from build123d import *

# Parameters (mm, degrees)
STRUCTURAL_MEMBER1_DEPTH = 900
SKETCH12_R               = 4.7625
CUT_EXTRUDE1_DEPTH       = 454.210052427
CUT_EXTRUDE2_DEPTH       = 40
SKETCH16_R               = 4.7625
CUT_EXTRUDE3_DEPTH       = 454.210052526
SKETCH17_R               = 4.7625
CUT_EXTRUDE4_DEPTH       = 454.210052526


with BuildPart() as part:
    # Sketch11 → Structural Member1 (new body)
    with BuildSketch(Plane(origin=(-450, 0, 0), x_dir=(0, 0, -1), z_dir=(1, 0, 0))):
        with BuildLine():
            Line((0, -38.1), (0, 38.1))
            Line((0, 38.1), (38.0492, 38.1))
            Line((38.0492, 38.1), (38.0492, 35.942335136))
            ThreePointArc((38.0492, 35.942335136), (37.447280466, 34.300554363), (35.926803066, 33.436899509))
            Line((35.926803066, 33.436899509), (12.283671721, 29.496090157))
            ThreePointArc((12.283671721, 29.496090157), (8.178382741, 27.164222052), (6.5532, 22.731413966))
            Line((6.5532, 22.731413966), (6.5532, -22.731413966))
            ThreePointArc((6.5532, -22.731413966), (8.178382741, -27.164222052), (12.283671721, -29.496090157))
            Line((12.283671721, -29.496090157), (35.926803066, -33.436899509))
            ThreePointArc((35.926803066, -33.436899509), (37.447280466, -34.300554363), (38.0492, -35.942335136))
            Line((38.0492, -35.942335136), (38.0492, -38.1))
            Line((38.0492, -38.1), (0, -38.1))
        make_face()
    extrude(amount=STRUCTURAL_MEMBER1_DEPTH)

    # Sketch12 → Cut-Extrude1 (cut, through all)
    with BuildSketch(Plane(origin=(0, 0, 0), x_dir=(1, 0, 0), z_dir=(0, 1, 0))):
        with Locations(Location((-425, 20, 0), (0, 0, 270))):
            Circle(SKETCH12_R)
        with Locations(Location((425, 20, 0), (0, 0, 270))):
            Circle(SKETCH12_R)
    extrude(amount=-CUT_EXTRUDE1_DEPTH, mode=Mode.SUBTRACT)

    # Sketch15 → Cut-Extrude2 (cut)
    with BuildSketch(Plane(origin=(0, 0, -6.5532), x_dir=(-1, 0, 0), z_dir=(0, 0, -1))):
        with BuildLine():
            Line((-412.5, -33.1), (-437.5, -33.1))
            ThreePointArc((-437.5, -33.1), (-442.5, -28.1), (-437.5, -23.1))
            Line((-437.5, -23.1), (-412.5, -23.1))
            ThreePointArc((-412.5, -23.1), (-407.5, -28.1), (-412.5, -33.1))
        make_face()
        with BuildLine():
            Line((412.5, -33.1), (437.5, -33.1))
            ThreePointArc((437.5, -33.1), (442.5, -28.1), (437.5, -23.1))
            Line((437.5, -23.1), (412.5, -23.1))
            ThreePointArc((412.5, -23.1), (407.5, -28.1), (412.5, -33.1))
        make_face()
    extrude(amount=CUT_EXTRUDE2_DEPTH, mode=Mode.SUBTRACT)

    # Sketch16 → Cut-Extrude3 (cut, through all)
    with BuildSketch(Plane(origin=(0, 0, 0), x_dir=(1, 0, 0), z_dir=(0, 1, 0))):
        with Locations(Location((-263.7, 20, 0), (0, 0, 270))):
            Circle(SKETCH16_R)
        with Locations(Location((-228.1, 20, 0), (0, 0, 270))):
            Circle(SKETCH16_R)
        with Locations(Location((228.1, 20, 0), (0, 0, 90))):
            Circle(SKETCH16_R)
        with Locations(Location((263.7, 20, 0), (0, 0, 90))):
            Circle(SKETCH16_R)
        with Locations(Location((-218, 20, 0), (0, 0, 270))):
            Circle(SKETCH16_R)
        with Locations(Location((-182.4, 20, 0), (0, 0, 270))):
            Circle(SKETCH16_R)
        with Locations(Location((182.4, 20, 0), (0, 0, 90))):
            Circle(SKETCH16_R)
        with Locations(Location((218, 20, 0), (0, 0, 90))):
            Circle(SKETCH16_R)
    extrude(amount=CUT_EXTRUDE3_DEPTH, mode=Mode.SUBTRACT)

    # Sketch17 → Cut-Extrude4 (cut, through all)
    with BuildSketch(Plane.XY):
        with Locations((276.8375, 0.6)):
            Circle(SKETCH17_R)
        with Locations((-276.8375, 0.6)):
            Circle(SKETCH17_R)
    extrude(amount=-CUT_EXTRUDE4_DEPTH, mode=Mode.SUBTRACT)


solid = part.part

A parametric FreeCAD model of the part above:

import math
import FreeCAD as App
import Part
import Sketcher

V = App.Vector
Q = App.Units.Quantity

doc = App.newDocument("Part")
params = doc.addObject("Spreadsheet::Sheet", "Params")
for row, (alias, value) in enumerate([
    ("sketch1_radius", "0.1 in"),
    ("sketch1_radius2", "0.1 in"),
    ("sketch1_width", "3 in"),
    ("sketch1_radius3", "0.27 in"),
    ("sketch1_radius4", "0.27 in"),
    ("pad1_length", "900 mm"),
    ("sketch2_diameter", "0.375 in"),
    ("pocket2_length", "40 mm"),
    ("sketch4_diameter", "0.375 in"),
    ("sketch5_diameter", "0.375 in"),
], start=1):
    params.set(f"A{row}", alias)
    params.set(f"B{row}", "=" + value)
    params.setAlias(f"B{row}", alias)

body = doc.addObject("PartDesign::Body", "Body")

# Sketch on YZ plane
sketch1 = body.newObject("Sketcher::SketchObject", "Sketch")
sketch1.AttachmentSupport = (doc.getObject("YZ_Plane"), [""])
sketch1.MapMode = "FlatFace"
sketch1.AttachmentOffset = App.Placement(V(0, 0, -450), App.Rotation())
sketch1.addGeometry([
    Part.LineSegment(V(38.1, 0, 0), V(-38.1, 0, 0)),  # 0
    Part.LineSegment(V(-38.1, 0, 0), V(-38.1, -38.0492, 0)),  # 1
    Part.LineSegment(V(-38.1, -38.0492, 0), V(-35.942335, -38.0492, 0)),  # 2
    Part.ArcOfCircle(Part.Circle(V(-35.942335, -35.5092, 0), V(0, 0, 1), 2.54), math.radians(-90), math.radians(-9.463)),  # 3
    Part.LineSegment(V(-33.4369, -35.926803, 0), V(-29.49609, -12.283672, 0)),  # 4
    Part.ArcOfCircle(Part.Circle(V(-22.731414, -13.4112, 0), V(0, 0, 1), 6.858), math.radians(90), math.radians(170.537)),  # 5
    Part.LineSegment(V(-22.731414, -6.5532, 0), V(22.731414, -6.5532, 0)),  # 6
    Part.ArcOfCircle(Part.Circle(V(22.731414, -13.4112, 0), V(0, 0, 1), 6.858), math.radians(9.463), math.radians(90)),  # 7
    Part.LineSegment(V(29.49609, -12.283672, 0), V(33.4369, -35.926803, 0)),  # 8
    Part.ArcOfCircle(Part.Circle(V(35.942335, -35.5092, 0), V(0, 0, 1), 2.54), math.radians(-170.537), math.radians(-90)),  # 9
    Part.LineSegment(V(35.942335, -38.0492, 0), V(38.1, -38.0492, 0)),  # 10
    Part.LineSegment(V(38.1, -38.0492, 0), V(38.1, 0, 0)),  # 11
], False)
sketch1.addConstraint([
    Sketcher.Constraint("Coincident", 0, 2, 1, 1),
    Sketcher.Constraint("Coincident", 1, 2, 2, 1),
    Sketcher.Constraint("Coincident", 2, 2, 3, 1),
    Sketcher.Constraint("Coincident", 3, 2, 4, 1),
    Sketcher.Constraint("Coincident", 4, 2, 5, 2),
    Sketcher.Constraint("Coincident", 5, 1, 6, 1),
    Sketcher.Constraint("Coincident", 6, 2, 7, 2),
    Sketcher.Constraint("Coincident", 7, 1, 8, 1),
    Sketcher.Constraint("Coincident", 8, 2, 9, 1),
    Sketcher.Constraint("Coincident", 9, 2, 10, 1),
    Sketcher.Constraint("Coincident", 10, 2, 11, 1),
    Sketcher.Constraint("Coincident", 11, 2, 0, 1),
    Sketcher.Constraint("Horizontal", 0),
    Sketcher.Constraint("Vertical", 1),
    Sketcher.Constraint("Horizontal", 2),
    Sketcher.Constraint("Horizontal", 6),
    Sketcher.Constraint("Horizontal", 10),
    Sketcher.Constraint("Vertical", 11),
    Sketcher.Constraint("PointOnObject", 0, 2, -1),
    Sketcher.Constraint("Radius", 3, Q("0.1 in")),
    Sketcher.Constraint("Radius", 9, Q("0.1 in")),
    Sketcher.Constraint("DistanceX", 0, 2, 0, 1, Q("3 in")),
    Sketcher.Constraint("Radius", 5, Q("0.27 in")),
    Sketcher.Constraint("Radius", 7, Q("0.27 in")),
    Sketcher.Constraint("DistanceX", 0, 2, -1, 1, Q("1.5 in")),
    Sketcher.Constraint("DistanceY", 1, 2, 9, 3, Q("0.1 in")),
    Sketcher.Constraint("DistanceY", 1, 2, 1, 1, Q("1.498 in")),
    Sketcher.Constraint("DistanceY", 3, 3, 5, 3, Q("0.87 in")),
    Sketcher.Constraint("DistanceX", 3, 2, -1, 1, 33.4369),
    Sketcher.Constraint("DistanceX", -1, 1, 8, 2, 33.4369),
    Sketcher.Constraint("DistanceX", 2, 1, 2, 2, 2.157665),
    Sketcher.Constraint("DistanceX", 6, 1, 6, 2, 45.462828),
    Sketcher.Constraint("DistanceX", 10, 1, 10, 2, 2.157665),
    Sketcher.Constraint("DistanceX", 4, 2, -1, 1, 29.49609),
    Sketcher.Constraint("DistanceY", 4, 2, -1, 1, 12.283672),
    Sketcher.Constraint("DistanceX", -1, 1, 7, 1, 29.49609),
    Sketcher.Constraint("DistanceY", 7, 1, -1, 1, 12.283672),
    Sketcher.Constraint("DistanceX", 3, 3, 5, 3, 13.210921),
    Sketcher.Constraint("DistanceX", 7, 3, 9, 3, 13.210921),
    Sketcher.Constraint("DistanceX", 3, 3, 5, 1, 13.210921),
])
sketch1.setExpression("Constraints[19]", "Params.sketch1_radius")
sketch1.setExpression("Constraints[20]", "Params.sketch1_radius2")
sketch1.setExpression("Constraints[21]", "Params.sketch1_width")
sketch1.setExpression("Constraints[22]", "Params.sketch1_radius3")
sketch1.setExpression("Constraints[23]", "Params.sketch1_radius4")
pad1 = body.newObject("PartDesign::Pad", "Pad")
pad1.Profile = sketch1
pad1.setExpression("Length", "Params.pad1_length")

# Sketch on XZ plane
sketch2 = body.newObject("Sketcher::SketchObject", "Sketch001")
sketch2.AttachmentSupport = (doc.getObject("XZ_Plane"), [""])
sketch2.MapMode = "FlatFace"
sketch2.addGeometry([
    Part.Circle(V(-425, -20, 0), V(0, 0, 1), 4.7625),
    Part.Circle(V(425, -20, 0), V(0, 0, 1), 4.7625),
], False)
sketch2.addConstraint([
    Sketcher.Constraint("Equal", 0, 1),
    Sketcher.Constraint("Symmetric", 0, 3, 1, 3, -2),
    Sketcher.Constraint("Diameter", 0, Q("0.375 in")),
    Sketcher.Constraint("DistanceX", 0, 3, -1, 1, 425.0),
    Sketcher.Constraint("DistanceY", 0, 3, -1, 1, 20.0),
])
sketch2.setExpression("Constraints[2]", "Params.sketch2_diameter")
pocket1 = body.newObject("PartDesign::Pocket", "Pocket")
pocket1.Profile = sketch2
pocket1.Type = "ThroughAll"
pocket1.Reversed = True

# Sketch on XY plane
sketch3 = body.newObject("Sketcher::SketchObject", "Sketch002")
sketch3.AttachmentSupport = (doc.getObject("XY_Plane"), [""])
sketch3.MapMode = "FlatFace"
sketch3.AttachmentOffset = App.Placement(V(0, 0, -0.258 * 25.4), App.Rotation())
sketch3.addGeometry([
    Part.LineSegment(V(437.5, -33.1, 0), V(412.5, -33.1, 0)),  # 0
    Part.ArcOfCircle(Part.Circle(V(412.5, -28.1, 0), V(0, 0, 1), 5), math.radians(90), math.radians(270)),  # 1
    Part.LineSegment(V(412.5, -23.1, 0), V(437.5, -23.1, 0)),  # 2
    Part.ArcOfCircle(Part.Circle(V(437.5, -28.1, 0), V(0, 0, 1), 5), math.radians(-90), math.radians(90)),  # 3
    Part.LineSegment(V(-412.5, -33.1, 0), V(-437.5, -33.1, 0)),  # 4
    Part.ArcOfCircle(Part.Circle(V(-437.5, -28.1, 0), V(0, 0, 1), 5), math.radians(90), math.radians(270)),  # 5
    Part.LineSegment(V(-437.5, -23.1, 0), V(-412.5, -23.1, 0)),  # 6
    Part.ArcOfCircle(Part.Circle(V(-412.5, -28.1, 0), V(0, 0, 1), 5), math.radians(-90), math.radians(90)),  # 7
], False)
sketch3.addConstraint([
    Sketcher.Constraint("Tangent", 0, 2, 1, 2),
    Sketcher.Constraint("Tangent", 1, 1, 2, 1),
    Sketcher.Constraint("Tangent", 2, 2, 3, 2),
    Sketcher.Constraint("Tangent", 3, 1, 0, 1),
    Sketcher.Constraint("Tangent", 4, 2, 5, 2),
    Sketcher.Constraint("Tangent", 5, 1, 6, 1),
    Sketcher.Constraint("Tangent", 6, 2, 7, 2),
    Sketcher.Constraint("Tangent", 7, 1, 4, 1),
    Sketcher.Constraint("Horizontal", 0),
    Sketcher.Constraint("Horizontal", 2),
    Sketcher.Constraint("Horizontal", 4),
    Sketcher.Constraint("Horizontal", 6),
    Sketcher.Constraint("Equal", 3, 5),
    Sketcher.Constraint("Symmetric", 3, 3, 5, 3, -2),
    Sketcher.Constraint("Equal", 2, 4),
    Sketcher.Constraint("Radius", 1, 5.0),
    Sketcher.Constraint("DistanceX", 0, 2, 0, 1, 25.0),
    Sketcher.Constraint("DistanceX", -1, 1, 1, 3, 412.5),
    Sketcher.Constraint("DistanceY", 1, 3, -1, 1, 28.1),
])
pocket2 = body.newObject("PartDesign::Pocket", "Pocket001")
pocket2.Profile = sketch3
pocket2.setExpression("Length", "Params.pocket2_length")

# Sketch on XZ plane
sketch4 = body.newObject("Sketcher::SketchObject", "Sketch003")
sketch4.AttachmentSupport = (doc.getObject("XZ_Plane"), [""])
sketch4.MapMode = "FlatFace"
sketch4.addGeometry([
    Part.Circle(V(-263.7, -20, 0), V(0, 0, 1), 4.7625),  # 0
    Part.Circle(V(-228.1, -20, 0), V(0, 0, 1), 4.7625),  # 1
    Part.Circle(V(228.1, -20, 0), V(0, 0, 1), 4.7625),  # 2
    Part.Circle(V(263.7, -20, 0), V(0, 0, 1), 4.7625),  # 3
    Part.Circle(V(-218, -20, 0), V(0, 0, 1), 4.7625),  # 4
    Part.Circle(V(-182.4, -20, 0), V(0, 0, 1), 4.7625),  # 5
    Part.Circle(V(182.4, -20, 0), V(0, 0, 1), 4.7625),  # 6
    Part.Circle(V(218, -20, 0), V(0, 0, 1), 4.7625),  # 7
], False)
sketch4.addConstraint([
    Sketcher.Constraint("Equal", 0, 1),
    Sketcher.Constraint("Equal", 1, 2),
    Sketcher.Constraint("Equal", 2, 3),
    Sketcher.Constraint("Equal", 3, 4),
    Sketcher.Constraint("Equal", 4, 5),
    Sketcher.Constraint("Equal", 5, 6),
    Sketcher.Constraint("Equal", 6, 7),
    Sketcher.Constraint("Symmetric", 1, 3, 2, 3, -2),
    Sketcher.Constraint("Symmetric", 0, 3, 3, 3, -2),
    Sketcher.Constraint("Symmetric", 5, 3, 6, 3, -2),
    Sketcher.Constraint("Symmetric", 4, 3, 7, 3, -2),
    Sketcher.Constraint("Horizontal", 0, 3, 1, 3),
    Sketcher.Constraint("Horizontal", 3, 3, 4, 3),
    Sketcher.Constraint("Horizontal", 4, 3, 5, 3),
    Sketcher.Constraint("Diameter", 0, Q("0.375 in")),
    Sketcher.Constraint("DistanceX", 0, 3, -1, 1, 263.7),
    Sketcher.Constraint("DistanceY", 0, 3, -1, 1, 20.0),
    Sketcher.Constraint("DistanceX", 1, 3, -1, 1, 228.1),
    Sketcher.Constraint("DistanceX", 4, 3, -1, 1, 218.0),
    Sketcher.Constraint("DistanceX", 5, 3, -1, 1, 182.4),
])
sketch4.setExpression("Constraints[14]", "Params.sketch4_diameter")
pocket3 = body.newObject("PartDesign::Pocket", "Pocket002")
pocket3.Profile = sketch4
pocket3.Type = "ThroughAll"

# Sketch on XY plane
sketch5 = body.newObject("Sketcher::SketchObject", "Sketch004")
sketch5.AttachmentSupport = (doc.getObject("XY_Plane"), [""])
sketch5.MapMode = "FlatFace"
sketch5.addGeometry([
    Part.Circle(V(276.8375, 0.6, 0), V(0, 0, 1), 4.7625),
    Part.Circle(V(-276.8375, 0.6, 0), V(0, 0, 1), 4.7625),
], False)
sketch5.addConstraint([
    Sketcher.Constraint("Equal", 0, 1),
    Sketcher.Constraint("Symmetric", 0, 3, 1, 3, -2),
    Sketcher.Constraint("Diameter", 0, Q("0.375 in")),
    Sketcher.Constraint("DistanceX", -1, 1, 0, 3, 276.8375),
    Sketcher.Constraint("DistanceY", -1, 1, 0, 3, 0.6),
])
sketch5.setExpression("Constraints[2]", "Params.sketch5_diameter")
pocket4 = body.newObject("PartDesign::Pocket", "Pocket003")
pocket4.Profile = sketch5
pocket4.Type = "ThroughAll"

doc.recompute()
